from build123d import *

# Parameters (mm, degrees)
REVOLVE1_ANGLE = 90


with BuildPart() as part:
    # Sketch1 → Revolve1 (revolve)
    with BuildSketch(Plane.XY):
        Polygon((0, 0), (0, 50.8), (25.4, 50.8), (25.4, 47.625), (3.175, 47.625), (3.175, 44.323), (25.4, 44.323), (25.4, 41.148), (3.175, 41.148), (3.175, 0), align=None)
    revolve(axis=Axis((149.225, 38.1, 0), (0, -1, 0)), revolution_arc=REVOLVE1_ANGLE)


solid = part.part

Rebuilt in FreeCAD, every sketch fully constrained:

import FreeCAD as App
import Part
import Sketcher

V = App.Vector
Q = App.Units.Quantity


def add_polygon(sketch, points):
    """Adds a closed chain of lines whose ends are joined by coincident constraints."""
    first, n = sketch.GeometryCount, len(points)
    for a, b in zip(points, points[1:] + points[:1]):
        sketch.addGeometry(Part.LineSegment(App.Vector(*a, 0), App.Vector(*b, 0)), False)
    for i in range(n):
        sketch.addConstraint(Sketcher.Constraint("Coincident", first + i, 2, first + (i + 1) % n, 1))

doc = App.newDocument("Part")
body = doc.addObject("PartDesign::Body", "Body")

sketch1 = doc.addObject("Sketcher::SketchObject", "Sketch")
body.addObject(sketch1)
sketch1.AttachmentSupport = (doc.XY_Plane, [""])
sketch1.MapMode = "FlatFace"
add_polygon(sketch1, [(0, 50.8), (0, 0), (3.2, 0), (3.2, 41.1), (25.4, 41.1), (25.4, 44.3), (3.2, 44.3), (3.2, 47.6), (25.4, 47.6), (25.4, 50.8)])
sketch1.addGeometry(Part.LineSegment(V(149.2, 50.8, 0), V(149.2, 0, 0)), True)
sketch1.addConstraint([
    Sketcher.Constraint("Vertical", 0),
    Sketcher.Constraint("Horizontal", 1),
    Sketcher.Constraint("Vertical", 2),
    Sketcher.Constraint("Horizontal", 3),
    Sketcher.Constraint("Vertical", 4),
    Sketcher.Constraint("Horizontal", 5),
    Sketcher.Constraint("Vertical", 6),
    Sketcher.Constraint("Horizontal", 7),
    Sketcher.Constraint("Vertical", 8),
    Sketcher.Constraint("Horizontal", 9),
    Sketcher.Constraint("Vertical", 10),
    Sketcher.Constraint("Coincident", 0, 2, -1, 1),
    Sketcher.Constraint("PointOnObject", 10, 2, -1),
    Sketcher.Constraint("Horizontal", 9, 2, 10, 1),
    Sketcher.Constraint("Vertical", 2, 2, 5, 2),
    Sketcher.Constraint("Vertical", 4, 2, 7, 2),
    Sketcher.Constraint("Equal", 1, 4),
    Sketcher.Constraint("Equal", 4, 8),
    Sketcher.Constraint("DistanceX", 9, 2, 9, 1, Q("1 in")),
    Sketcher.Constraint("DistanceY", 0, 2, 0, 1, Q("2 in")),
    Sketcher.Constraint("DistanceY", 2, 1, 2, 2, Q("1.62 in")),
    Sketcher.Constraint("DistanceY", 6, 1, 6, 2, Q("0.13 in")),
    Sketcher.Constraint("DistanceX", 6, 2, 10, 1, Q("5.75 in")),
])
revolution = doc.addObject("PartDesign::Revolution", "Revolution")
body.addObject(revolution)
revolution.Profile = sketch1
revolution.ReferenceAxis = (sketch1, ["Axis0"])
revolution.Angle = 90

doc.recompute()
